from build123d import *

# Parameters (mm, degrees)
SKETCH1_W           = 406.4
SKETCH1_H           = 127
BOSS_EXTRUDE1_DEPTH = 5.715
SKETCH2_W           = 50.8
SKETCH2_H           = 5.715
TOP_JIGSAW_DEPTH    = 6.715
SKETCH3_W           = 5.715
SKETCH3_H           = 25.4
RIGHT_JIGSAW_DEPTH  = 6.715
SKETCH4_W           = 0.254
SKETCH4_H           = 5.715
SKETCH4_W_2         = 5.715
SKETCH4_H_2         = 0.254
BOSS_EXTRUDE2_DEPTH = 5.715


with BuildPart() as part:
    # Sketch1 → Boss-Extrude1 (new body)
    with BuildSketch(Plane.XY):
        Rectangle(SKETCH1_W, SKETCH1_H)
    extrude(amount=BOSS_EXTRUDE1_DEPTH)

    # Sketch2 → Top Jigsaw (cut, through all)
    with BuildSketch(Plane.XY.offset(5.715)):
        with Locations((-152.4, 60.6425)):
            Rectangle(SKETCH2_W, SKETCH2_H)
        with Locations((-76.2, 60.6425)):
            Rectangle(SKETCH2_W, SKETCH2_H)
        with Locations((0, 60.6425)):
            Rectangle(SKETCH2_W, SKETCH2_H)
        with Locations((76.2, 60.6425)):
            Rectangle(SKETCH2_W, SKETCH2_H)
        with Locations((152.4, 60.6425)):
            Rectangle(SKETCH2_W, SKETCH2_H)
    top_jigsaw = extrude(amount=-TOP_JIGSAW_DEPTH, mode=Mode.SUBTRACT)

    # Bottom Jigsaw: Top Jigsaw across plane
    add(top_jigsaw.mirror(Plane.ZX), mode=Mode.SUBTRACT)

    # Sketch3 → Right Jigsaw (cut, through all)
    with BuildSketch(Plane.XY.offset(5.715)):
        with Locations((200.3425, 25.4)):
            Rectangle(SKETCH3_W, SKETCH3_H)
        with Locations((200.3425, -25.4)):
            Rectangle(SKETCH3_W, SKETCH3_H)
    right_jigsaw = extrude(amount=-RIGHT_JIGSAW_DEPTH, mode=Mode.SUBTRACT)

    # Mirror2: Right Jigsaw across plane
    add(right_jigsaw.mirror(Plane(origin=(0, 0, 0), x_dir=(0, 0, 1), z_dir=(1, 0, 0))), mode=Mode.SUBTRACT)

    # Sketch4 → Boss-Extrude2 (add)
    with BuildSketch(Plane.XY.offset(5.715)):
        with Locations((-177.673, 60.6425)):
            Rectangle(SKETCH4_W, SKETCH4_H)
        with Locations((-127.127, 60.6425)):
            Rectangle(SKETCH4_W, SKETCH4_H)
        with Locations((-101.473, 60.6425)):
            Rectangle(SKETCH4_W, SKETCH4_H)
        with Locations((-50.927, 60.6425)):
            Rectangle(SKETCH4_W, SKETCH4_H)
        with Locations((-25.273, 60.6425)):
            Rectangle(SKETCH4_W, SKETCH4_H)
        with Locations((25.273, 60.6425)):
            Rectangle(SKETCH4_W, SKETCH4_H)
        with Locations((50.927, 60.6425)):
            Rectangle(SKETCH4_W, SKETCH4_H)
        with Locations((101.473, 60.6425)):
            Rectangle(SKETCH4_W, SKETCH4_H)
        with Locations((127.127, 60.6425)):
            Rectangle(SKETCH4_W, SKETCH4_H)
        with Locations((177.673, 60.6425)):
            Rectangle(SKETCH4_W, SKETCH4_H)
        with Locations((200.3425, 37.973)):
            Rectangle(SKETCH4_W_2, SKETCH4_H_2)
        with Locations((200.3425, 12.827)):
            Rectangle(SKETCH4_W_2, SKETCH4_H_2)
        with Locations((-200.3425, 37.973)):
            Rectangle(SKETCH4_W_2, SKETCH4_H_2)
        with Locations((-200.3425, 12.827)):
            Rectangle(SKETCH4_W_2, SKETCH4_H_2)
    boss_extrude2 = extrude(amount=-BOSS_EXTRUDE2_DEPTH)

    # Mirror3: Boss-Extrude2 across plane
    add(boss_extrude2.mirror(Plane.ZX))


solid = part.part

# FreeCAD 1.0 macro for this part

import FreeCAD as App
import Part
import Sketcher

V = App.Vector
Q = App.Units.Quantity

doc = App.newDocument("Part")
params = doc.addObject("Spreadsheet::Sheet", "Params")
for row, (alias, value) in enumerate([
    ("sketch1_width", "16 in"),
    ("sketch1_height", "5 in"),
    ("pad1_length", "0.225 in"),
    ("sketch2_width", "2 in"),
    ("sketch2_height", "0.225 in"),
    ("sketch3_height", "1 in"),
    ("sketch3_width", "0.225 in"),
    ("sketch4_width", "0.01 in"),
    ("sketch4_width2", "0.225 in"),
    ("pad2_length", "0.225 in"),
], start=1):
    params.set(f"A{row}", alias)
    params.set(f"B{row}", "=" + value)
    params.setAlias(f"B{row}", alias)

body = doc.addObject("PartDesign::Body", "Body")

# Sketch on XY plane
sketch1 = body.newObject("Sketcher::SketchObject", "Sketch")
sketch1.AttachmentSupport = (doc.getObject("XY_Plane"), [""])
sketch1.MapMode = "FlatFace"
sketch1.addGeometry([
    Part.LineSegment(V(-203, 64, 0), V(-203, -64, 0)),
    Part.LineSegment(V(-203, -64, 0), V(203, -64, 0)),
    Part.LineSegment(V(203, -64, 0), V(203, 64, 0)),
    Part.LineSegment(V(203, 64, 0), V(-203, 64, 0)),
], False)
sketch1.addConstraint([
    Sketcher.Constraint("Coincident", 0, 2, 1, 1),
    Sketcher.Constraint("Coincident", 1, 2, 2, 1),
    Sketcher.Constraint("Coincident", 2, 2, 3, 1),
    Sketcher.Constraint("Coincident", 3, 2, 0, 1),
    Sketcher.Constraint("Vertical", 0),
    Sketcher.Constraint("Horizontal", 1),
    Sketcher.Constraint("Vertical", 2),
    Sketcher.Constraint("Horizontal", 3),
    Sketcher.Constraint("Symmetric", 0, 2, 2, 2, -1, 1),
    Sketcher.Constraint("DistanceX", 1, 1, 1, 2, Q("16 in")),
    Sketcher.Constraint("DistanceY", 0, 2, 0, 1, Q("5 in")),
])
sketch1.setExpression("Constraints[9]", "Params.sketch1_width")
sketch1.setExpression("Constraints[10]", "Params.sketch1_height")
pad1 = body.newObject("PartDesign::Pad", "Pad")
pad1.Profile = sketch1
pad1.setExpression("Length", "Params.pad1_length")

# Sketch on XY plane
sketch2 = body.newObject("Sketcher::SketchObject", "Sketch001")
sketch2.AttachmentSupport = (doc.getObject("XY_Plane"), [""])
sketch2.MapMode = "FlatFace"
sketch2.AttachmentOffset = App.Placement(V(0, 0, 0.225 * 25.4), App.Rotation())
sketch2.addGeometry([
    Part.LineSegment(V(-178, 64, 0), V(-178, 58, 0)),  # 0
    Part.LineSegment(V(-178, 58, 0), V(-127, 58, 0)),  # 1
    Part.LineSegment(V(-127, 58, 0), V(-127, 64, 0)),  # 2
    Part.LineSegment(V(-127, 64, 0), V(-178, 64, 0)),  # 3
    Part.LineSegment(V(-102, 64, 0), V(-102, 58, 0)),  # 4
    Part.LineSegment(V(-102, 58, 0), V(-51, 58, 0)),  # 5
    Part.LineSegment(V(-51, 58, 0), V(-51, 64, 0)),  # 6
    Part.LineSegment(V(-51, 64, 0), V(-102, 64, 0)),  # 7
    Part.LineSegment(V(-25, 64, 0), V(-25, 58, 0)),  # 8
    Part.LineSegment(V(-25, 58, 0), V(25, 58, 0)),  # 9
    Part.LineSegment(V(25, 58, 0), V(25, 64, 0)),  # 10
    Part.LineSegment(V(25, 64, 0), V(-25, 64, 0)),  # 11
    Part.LineSegment(V(51, 64, 0), V(51, 58, 0)),  # 12
    Part.LineSegment(V(51, 58, 0), V(102, 58, 0)),  # 13
    Part.LineSegment(V(102, 58, 0), V(102, 64, 0)),  # 14
    Part.LineSegment(V(102, 64, 0), V(51, 64, 0)),  # 15
    Part.LineSegment(V(127, 64, 0), V(127, 58, 0)),  # 16
    Part.LineSegment(V(127, 58, 0), V(178, 58, 0)),  # 17
    Part.LineSegment(V(178, 58, 0), V(178, 64, 0)),  # 18
    Part.LineSegment(V(178, 64, 0), V(127, 64, 0)),  # 19
], False)
sketch2.addConstraint([
    Sketcher.Constraint("Coincident", 0, 2, 1, 1),
    Sketcher.Constraint("Coincident", 1, 2, 2, 1),
    Sketcher.Constraint("Coincident", 2, 2, 3, 1),
    Sketcher.Constraint("Coincident", 3, 2, 0, 1),
    Sketcher.Constraint("Coincident", 4, 2, 5, 1),
    Sketcher.Constraint("Coincident", 5, 2, 6, 1),
    Sketcher.Constraint("Coincident", 6, 2, 7, 1),
    Sketcher.Constraint("Coincident", 7, 2, 4, 1),
    Sketcher.Constraint("Coincident", 8, 2, 9, 1),
    Sketcher.Constraint("Coincident", 9, 2, 10, 1),
    Sketcher.Constraint("Coincident", 10, 2, 11, 1),
    Sketcher.Constraint("Coincident", 11, 2, 8, 1),
    Sketcher.Constraint("Coincident", 12, 2, 13, 1),
    Sketcher.Constraint("Coincident", 13, 2, 14, 1),
    Sketcher.Constraint("Coincident", 14, 2, 15, 1),
    Sketcher.Constraint("Coincident", 15, 2, 12, 1),
    Sketcher.Constraint("Coincident", 16, 2, 17, 1),
    Sketcher.Constraint("Coincident", 17, 2, 18, 1),
    Sketcher.Constraint("Coincident", 18, 2, 19, 1),
    Sketcher.Constraint("Coincident", 19, 2, 16, 1),
    Sketcher.Constraint("Vertical", 0),
    Sketcher.Constraint("Horizontal", 1),
    Sketcher.Constraint("Vertical", 2),
    Sketcher.Constraint("Horizontal", 3),
    Sketcher.Constraint("Vertical", 4),
    Sketcher.Constraint("Horizontal", 5),
    Sketcher.Constraint("Vertical", 6),
    Sketcher.Constraint("Horizontal", 7),
    Sketcher.Constraint("Vertical", 8),
    Sketcher.Constraint("Horizontal", 9),
    Sketcher.Constraint("Vertical", 10),
    Sketcher.Constraint("Horizontal", 11),
    Sketcher.Constraint("Vertical", 12),
    Sketcher.Constraint("Horizontal", 13),
    Sketcher.Constraint("Vertical", 14),
    Sketcher.Constraint("Horizontal", 15),
    Sketcher.Constraint("Vertical", 16),
    Sketcher.Constraint("Horizontal", 17),
    Sketcher.Constraint("Vertical", 18),
    Sketcher.Constraint("Horizontal", 19),
    Sketcher.Constraint("Symmetric", 5, 2, 12, 2, -2),
    Sketcher.Constraint("Symmetric", 7, 2, 14, 2, -2),
    Sketcher.Constraint("Symmetric", 1, 2, 16, 2, -2),
    Sketcher.Constraint("Symmetric", 3, 2, 18, 2, -2),
    Sketcher.Constraint("Horizontal", 1, 2, 4, 2),
    Sketcher.Constraint("Horizontal", 3, 2, 6, 2),
    Sketcher.Constraint("Horizontal", 5, 2, 8, 2),
    Sketcher.Constraint("Horizontal", 7, 2, 10, 2),
    Sketcher.Constraint("Equal", 3, 5),
    Sketcher.Constraint("Equal", 7, 9),
    Sketcher.Constraint("DistanceX", 1, 1, 1, 2, Q("2 in")),
    Sketcher.Constraint("DistanceX", 0, 2, -1, 1, Q("7 in")),
    Sketcher.Constraint("DistanceX", 4, 2, -1, 1, Q("4 in")),
    Sketcher.Constraint("DistanceX", 8, 2, -1, 1, Q("1 in")),
    Sketcher.Constraint("DistanceY", -1, 1, 2, 2, Q("2.5 in")),
    Sketcher.Constraint("DistanceY", 0, 2, 0, 1, Q("0.225 in")),
])
sketch2.setExpression("Constraints[50]", "Params.sketch2_width")
sketch2.setExpression("Constraints[55]", "Params.sketch2_height")
pocket1 = body.newObject("PartDesign::Pocket", "Pocket")
pocket1.Profile = sketch2
pocket1.Type = "ThroughAll"
doc.recompute()

mirrored = body.newObject("PartDesign::Mirrored", "Mirrored")
mirrored.Originals = [pocket1]
mirrored.MirrorPlane = (doc.getObject("XZ_Plane"), [""])
body.Tip = mirrored

# Sketch on XY plane
sketch3 = body.newObject("Sketcher::SketchObject", "Sketch002")
sketch3.AttachmentSupport = (doc.getObject("XY_Plane"), [""])
sketch3.MapMode = "FlatFace"
sketch3.AttachmentOffset = App.Placement(V(0, 0, 0.225 * 25.4), App.Rotation())
sketch3.addGeometry([
    Part.LineSegment(V(197, 38, 0), V(197, 13, 0)),  # 0
    Part.LineSegment(V(197, 13, 0), V(203, 13, 0)),  # 1
    Part.LineSegment(V(203, 13, 0), V(203, 38, 0)),  # 2
    Part.LineSegment(V(203, 38, 0), V(197, 38, 0)),  # 3
    Part.LineSegment(V(197, -13, 0), V(197, -38, 0)),  # 4
    Part.LineSegment(V(197, -38, 0), V(203, -38, 0)),  # 5
    Part.LineSegment(V(203, -38, 0), V(203, -13, 0)),  # 6
    Part.LineSegment(V(203, -13, 0), V(197, -13, 0)),  # 7
], False)
sketch3.addConstraint([
    Sketcher.Constraint("Coincident", 0, 2, 1, 1),
    Sketcher.Constraint("Coincident", 1, 2, 2, 1),
    Sketcher.Constraint("Coincident", 2, 2, 3, 1),
    Sketcher.Constraint("Coincident", 3, 2, 0, 1),
    Sketcher.Constraint("Coincident", 4, 2, 5, 1),
    Sketcher.Constraint("Coincident", 5, 2, 6, 1),
    Sketcher.Constraint("Coincident", 6, 2, 7, 1),
    Sketcher.Constraint("Coincident", 7, 2, 4, 1),
    Sketcher.Constraint("Vertical", 0),
    Sketcher.Constraint("Horizontal", 1),
    Sketcher.Constraint("Vertical", 2),
    Sketcher.Constraint("Horizontal", 3),
    Sketcher.Constraint("Vertical", 4),
    Sketcher.Constraint("Horizontal", 5),
    Sketcher.Constraint("Vertical", 6),
    Sketcher.Constraint("Horizontal", 7),
    Sketcher.Constraint("Symmetric", 3, 2, 4, 2, -1),
    Sketcher.Constraint("Symmetric", 1, 2, 6, 2, -1),
    Sketcher.Constraint("DistanceY", 0, 2, 0, 1, Q("1 in")),
    Sketcher.Constraint("DistanceX", -1, 1, 1, 2, Q("8 in")),
    Sketcher.Constraint("DistanceY", 4, 2, 0, 2, Q("2 in")),
    Sketcher.Constraint("DistanceX", 1, 1, 1, 2, Q("0.225 in")),
])
sketch3.setExpression("Constraints[18]", "Params.sketch3_height")
sketch3.setExpression("Constraints[21]", "Params.sketch3_width")
pocket2 = body.newObject("PartDesign::Pocket", "Pocket001")
pocket2.Profile = sketch3
pocket2.Type = "ThroughAll"
doc.recompute()

mirrored2 = body.newObject("PartDesign::Mirrored", "Mirrored001")
mirrored2.Originals = [pocket2]
mirrored2.MirrorPlane = (doc.getObject("YZ_Plane"), [""])
body.Tip = mirrored2

# Sketch on XY plane
sketch4 = body.newObject("Sketcher::SketchObject", "Sketch003")
sketch4.AttachmentSupport = (doc.getObject("XY_Plane"), [""])
sketch4.MapMode = "FlatFace"
sketch4.AttachmentOffset = App.Placement(V(0, 0, 0.225 * 25.4), App.Rotation())
sketch4.addGeometry([
    Part.LineSegment(V(-177.8, 63.5, 0), V(-177.8, 57.78, 0)),  # 0
    Part.LineSegment(V(-177.8, 57.78, 0), V(-177.55, 57.78, 0)),  # 1
    Part.LineSegment(V(-177.55, 57.78, 0), V(-177.55, 63.5, 0)),  # 2
    Part.LineSegment(V(-177.55, 63.5, 0), V(-177.8, 63.5, 0)),  # 3
    Part.LineSegment(V(-127.25, 63.5, 0), V(-127.25, 57.78, 0)),  # 4
    Part.LineSegment(V(-127.25, 57.78, 0), V(-127, 57.78, 0)),  # 5
    Part.LineSegment(V(-127, 57.78, 0), V(-127, 63.5, 0)),  # 6
    Part.LineSegment(V(-127, 63.5, 0), V(-127.25, 63.5, 0)),  # 7
    Part.LineSegment(V(-101.6, 63.5, 0), V(-101.6, 57.78, 0)),  # 8
    Part.LineSegment(V(-101.6, 57.78, 0), V(-101.35, 57.78, 0)),  # 9
    Part.LineSegment(V(-101.35, 57.78, 0), V(-101.35, 63.5, 0)),  # 10
    Part.LineSegment(V(-101.35, 63.5, 0), V(-101.6, 63.5, 0)),  # 11
    Part.LineSegment(V(-51.05, 63.5, 0), V(-51.05, 57.78, 0)),  # 12
    Part.LineSegment(V(-51.05, 57.78, 0), V(-50.8, 57.78, 0)),  # 13
    Part.LineSegment(V(-50.8, 57.78, 0), V(-50.8, 63.5, 0)),  # 14
    Part.LineSegment(V(-50.8, 63.5, 0), V(-51.05, 63.5, 0)),  # 15
    Part.LineSegment(V(-25.4, 63.5, 0), V(-25.4, 57.78, 0)),  # 16
    Part.LineSegment(V(-25.4, 57.78, 0), V(-25.15, 57.78, 0)),  # 17
    Part.LineSegment(V(-25.15, 57.78, 0), V(-25.15, 63.5, 0)),  # 18
    Part.LineSegment(V(-25.15, 63.5, 0), V(-25.4, 63.5, 0)),  # 19
    Part.LineSegment(V(25.15, 63.5, 0), V(25.15, 57.78, 0)),  # 20
    Part.LineSegment(V(25.15, 57.78, 0), V(25.4, 57.78, 0)),  # 21
    Part.LineSegment(V(25.4, 57.78, 0), V(25.4, 63.5, 0)),  # 22
    Part.LineSegment(V(25.4, 63.5, 0), V(25.15, 63.5, 0)),  # 23
    Part.LineSegment(V(50.8, 63.5, 0), V(50.8, 57.78, 0)),  # 24
    Part.LineSegment(V(50.8, 57.78, 0), V(51.05, 57.78, 0)),  # 25
    Part.LineSegment(V(51.05, 57.78, 0), V(51.05, 63.5, 0)),  # 26
    Part.LineSegment(V(51.05, 63.5, 0), V(50.8, 63.5, 0)),  # 27
    Part.LineSegment(V(101.35, 63.5, 0), V(101.35, 57.78, 0)),  # 28
    Part.LineSegment(V(101.35, 57.78, 0), V(101.6, 57.78, 0)),  # 29
    Part.LineSegment(V(101.6, 57.78, 0), V(101.6, 63.5, 0)),  # 30
    Part.LineSegment(V(101.6, 63.5, 0), V(101.35, 63.5, 0)),  # 31
    Part.LineSegment(V(127, 63.5, 0), V(127, 57.78, 0)),  # 32
    Part.LineSegment(V(127, 57.78, 0), V(127.25, 57.78, 0)),  # 33
    Part.LineSegment(V(127.25, 57.78, 0), V(127.25, 63.5, 0)),  # 34
    Part.LineSegment(V(127.25, 63.5, 0), V(127, 63.5, 0)),  # 35
    Part.LineSegment(V(177.55, 63.5, 0), V(177.55, 57.78, 0)),  # 36
    Part.LineSegment(V(177.55, 57.78, 0), V(177.8, 57.78, 0)),  # 37
    Part.LineSegment(V(177.8, 57.78, 0), V(177.8, 63.5, 0)),  # 38
    Part.LineSegment(V(177.8, 63.5, 0), V(177.55, 63.5, 0)),  # 39
    Part.LineSegment(V(197.49, 38.1, 0), V(197.49, 37.85, 0)),  # 40
    Part.LineSegment(V(197.49, 37.85, 0), V(203.2, 37.85, 0)),  # 41
    Part.LineSegment(V(203.2, 37.85, 0), V(203.2, 38.1, 0)),  # 42
    Part.LineSegment(V(203.2, 38.1, 0), V(197.49, 38.1, 0)),  # 43
    Part.LineSegment(V(197.49, 12.95, 0), V(197.49, 12.7, 0)),  # 44
    Part.LineSegment(V(197.49, 12.7, 0), V(203.2, 12.7, 0)),  # 45
    Part.LineSegment(V(203.2, 12.7, 0), V(203.2, 12.95, 0)),  # 46
    Part.LineSegment(V(203.2, 12.95, 0), V(197.49, 12.95, 0)),  # 47
    Part.LineSegment(V(-203.2, 38.1, 0), V(-203.2, 37.85, 0)),  # 48
    Part.LineSegment(V(-203.2, 37.85, 0), V(-197.49, 37.85, 0)),  # 49
    Part.LineSegment(V(-197.49, 37.85, 0), V(-197.49, 38.1, 0)),  # 50
    Part.LineSegment(V(-197.49, 38.1, 0), V(-203.2, 38.1, 0)),  # 51
    Part.LineSegment(V(-203.2, 12.95, 0), V(-203.2, 12.7, 0)),  # 52
    Part.LineSegment(V(-203.2, 12.7, 0), V(-197.49, 12.7, 0)),  # 53
    Part.LineSegment(V(-197.49, 12.7, 0), V(-197.49, 12.95, 0)),  # 54
    Part.LineSegment(V(-197.49, 12.95, 0), V(-203.2, 12.95, 0)),  # 55
], False)
sketch4.addConstraint([
    Sketcher.Constraint("Coincident", 0, 2, 1, 1),
    Sketcher.Constraint("Coincident", 1, 2, 2, 1),
    Sketcher.Constraint("Coincident", 2, 2, 3, 1),
    Sketcher.Constraint("Coincident", 3, 2, 0, 1),
    Sketcher.Constraint("Coincident", 4, 2, 5, 1),
    Sketcher.Constraint("Coincident", 5, 2, 6, 1),
    Sketcher.Constraint("Coincident", 6, 2, 7, 1),
    Sketcher.Constraint("Coincident", 7, 2, 4, 1),
    Sketcher.Constraint("Coincident", 8, 2, 9, 1),
    Sketcher.Constraint("Coincident", 9, 2, 10, 1),
    Sketcher.Constraint("Coincident", 10, 2, 11, 1),
    Sketcher.Constraint("Coincident", 11, 2, 8, 1),
    Sketcher.Constraint("Coincident", 12, 2, 13, 1),
    Sketcher.Constraint("Coincident", 13, 2, 14, 1),
    Sketcher.Constraint("Coincident", 14, 2, 15, 1),
    Sketcher.Constraint("Coincident", 15, 2, 12, 1),
    Sketcher.Constraint("Coincident", 16, 2, 17, 1),
    Sketcher.Constraint("Coincident", 17, 2, 18, 1),
    Sketcher.Constraint("Coincident", 18, 2, 19, 1),
    Sketcher.Constraint("Coincident", 19, 2, 16, 1),
    Sketcher.Constraint("Coincident", 20, 2, 21, 1),
    Sketcher.Constraint("Coincident", 21, 2, 22, 1),
    Sketcher.Constraint("Coincident", 22, 2, 23, 1),
    Sketcher.Constraint("Coincident", 23, 2, 20, 1),
    Sketcher.Constraint("Coincident", 24, 2, 25, 1),
    Sketcher.Constraint("Coincident", 25, 2, 26, 1),
    Sketcher.Constraint("Coincident", 26, 2, 27, 1),
    Sketcher.Constraint("Coincident", 27, 2, 24, 1),
    Sketcher.Constraint("Coincident", 28, 2, 29, 1),
    Sketcher.Constraint("Coincident", 29, 2, 30, 1),
    Sketcher.Constraint("Coincident", 30, 2, 31, 1),
    Sketcher.Constraint("Coincident", 31, 2, 28, 1),
    Sketcher.Constraint("Coincident", 32, 2, 33, 1),
    Sketcher.Constraint("Coincident", 33, 2, 34, 1),
    Sketcher.Constraint("Coincident", 34, 2, 35, 1),
    Sketcher.Constraint("Coincident", 35, 2, 32, 1),
    Sketcher.Constraint("Coincident", 36, 2, 37, 1),
    Sketcher.Constraint("Coincident", 37, 2, 38, 1),
    Sketcher.Constraint("Coincident", 38, 2, 39, 1),
    Sketcher.Constraint("Coincident", 39, 2, 36, 1),
    Sketcher.Constraint("Coincident", 40, 2, 41, 1),
    Sketcher.Constraint("Coincident", 41, 2, 42, 1),
    Sketcher.Constraint("Coincident", 42, 2, 43, 1),
    Sketcher.Constraint("Coincident", 43, 2, 40, 1),
    Sketcher.Constraint("Coincident", 44, 2, 45, 1),
    Sketcher.Constraint("Coincident", 45, 2, 46, 1),
    Sketcher.Constraint("Coincident", 46, 2, 47, 1),
    Sketcher.Constraint("Coincident", 47, 2, 44, 1),
    Sketcher.Constraint("Coincident", 48, 2, 49, 1),
    Sketcher.Constraint("Coincident", 49, 2, 50, 1),
    Sketcher.Constraint("Coincident", 50, 2, 51, 1),
    Sketcher.Constraint("Coincident", 51, 2, 48, 1),
    Sketcher.Constraint("Coincident", 52, 2, 53, 1),
    Sketcher.Constraint("Coincident", 53, 2, 54, 1),
    Sketcher.Constraint("Coincident", 54, 2, 55, 1),
    Sketcher.Constraint("Coincident", 55, 2, 52, 1),
    Sketcher.Constraint("Vertical", 0),
    Sketcher.Constraint("Horizontal", 1),
    Sketcher.Constraint("Vertical", 2),
    Sketcher.Constraint("Horizontal", 3),
    Sketcher.Constraint("Vertical", 4),
    Sketcher.Constraint("Horizontal", 5),
    Sketcher.Constraint("Vertical", 6),
    Sketcher.Constraint("Horizontal", 7),
    Sketcher.Constraint("Vertical", 8),
    Sketcher.Constraint("Horizontal", 9),
    Sketcher.Constraint("Vertical", 10),
    Sketcher.Constraint("Horizontal", 11),
    Sketcher.Constraint("Vertical", 12),
    Sketcher.Constraint("Horizontal", 13),
    Sketcher.Constraint("Vertical", 14),
    Sketcher.Constraint("Horizontal", 15),
    Sketcher.Constraint("Vertical", 16),
    Sketcher.Constraint("Horizontal", 17),
    Sketcher.Constraint("Vertical", 18),
    Sketcher.Constraint("Horizontal", 19),
    Sketcher.Constraint("Vertical", 20),
    Sketcher.Constraint("Horizontal", 21),
    Sketcher.Constraint("Vertical", 22),
    Sketcher.Constraint("Horizontal", 23),
    Sketcher.Constraint("Vertical", 24),
    Sketcher.Constraint("Horizontal", 25),
    Sketcher.Constraint("Vertical", 26),
    Sketcher.Constraint("Horizontal", 27),
    Sketcher.Constraint("Vertical", 28),
    Sketcher.Constraint("Horizontal", 29),
    Sketcher.Constraint("Vertical", 30),
    Sketcher.Constraint("Horizontal", 31),
    Sketcher.Constraint("Vertical", 32),
    Sketcher.Constraint("Horizontal", 33),
    Sketcher.Constraint("Vertical", 34),
    Sketcher.Constraint("Horizontal", 35),
    Sketcher.Constraint("Vertical", 36),
    Sketcher.Constraint("Horizontal", 37),
    Sketcher.Constraint("Vertical", 38),
    Sketcher.Constraint("Horizontal", 39),
    Sketcher.Constraint("Vertical", 40),
    Sketcher.Constraint("Horizontal", 41),
    Sketcher.Constraint("Vertical", 42),
    Sketcher.Constraint("Horizontal", 43),
    Sketcher.Constraint("Vertical", 44),
    Sketcher.Constraint("Horizontal", 45),
    Sketcher.Constraint("Vertical", 46),
    Sketcher.Constraint("Horizontal", 47),
    Sketcher.Constraint("Vertical", 48),
    Sketcher.Constraint("Horizontal", 49),
    Sketcher.Constraint("Vertical", 50),
    Sketcher.Constraint("Horizontal", 51),
    Sketcher.Constraint("Vertical", 52),
    Sketcher.Constraint("Horizontal", 53),
    Sketcher.Constraint("Vertical", 54),
    Sketcher.Constraint("Horizontal", 55),
    Sketcher.Constraint("Symmetric", 17, 2, 20, 2, -2),
    Sketcher.Constraint("Symmetric", 19, 2, 22, 2, -2),
    Sketcher.Constraint("Symmetric", 13, 2, 24, 2, -2),
    Sketcher.Constraint("Symmetric", 15, 2, 26, 2, -2),
    Sketcher.Constraint("Symmetric", 9, 2, 28, 2, -2),
    Sketcher.Constraint("Symmetric", 11, 2, 30, 2, -2),
    Sketcher.Constraint("Symmetric", 5, 2, 32, 2, -2),
    Sketcher.Constraint("Symmetric", 7, 2, 34, 2, -2),
    Sketcher.Constraint("Symmetric", 1, 2, 36, 2, -2),
    Sketcher.Constraint("Symmetric", 3, 2, 38, 2, -2),
    Sketcher.Constraint("Symmetric", 41, 2, 48, 2, -2),
    Sketcher.Constraint("Symmetric", 43, 2, 50, 2, -2),
    Sketcher.Constraint("Symmetric", 45, 2, 52, 2, -2),
    Sketcher.Constraint("Symmetric", 47, 2, 54, 2, -2),
    Sketcher.Constraint("Horizontal", 1, 2, 4, 2),
    Sketcher.Constraint("Horizontal", 3, 2, 6, 2),
    Sketcher.Constraint("Horizontal", 5, 2, 8, 2),
    Sketcher.Constraint("Horizontal", 7, 2, 10, 2),
    Sketcher.Constraint("Horizontal", 9, 2, 12, 2),
    Sketcher.Constraint("Horizontal", 11, 2, 14, 2),
    Sketcher.Constraint("Horizontal", 13, 2, 16, 2),
    Sketcher.Constraint("Horizontal", 15, 2, 18, 2),
    Sketcher.Constraint("Vertical", 43, 2, 44, 2),
    Sketcher.Constraint("Vertical", 42, 2, 45, 2),
    Sketcher.Constraint("Equal", 3, 5),
    Sketcher.Constraint("Equal", 7, 9),
    Sketcher.Constraint("Equal", 11, 13),
    Sketcher.Constraint("Equal", 15, 17),
    Sketcher.Constraint("Equal", 55, 0),
    Sketcher.Constraint("Equal", 39, 40),
    Sketcher.Constraint("Equal", 42, 44),
    Sketcher.Constraint("DistanceX", 0, 2, -1, 1, Q("7 in")),
    Sketcher.Constraint("DistanceX", 5, 2, -1, 1, Q("5 in")),
    Sketcher.Constraint("DistanceX", 8, 2, -1, 1, Q("4 in")),
    Sketcher.Constraint("DistanceX", 13, 2, -1, 1, Q("2 in")),
    Sketcher.Constraint("DistanceX", 16, 2, -1, 1, Q("1 in")),
    Sketcher.Constraint("DistanceX", -1, 1, 41, 2, Q("8 in")),
    Sketcher.Constraint("DistanceY", 42, 2, 38, 2, Q("1 in")),
    Sketcher.Constraint("DistanceY", 44, 2, 43, 2, Q("1 in")),
    Sketcher.Constraint("DistanceX", 1, 1, 1, 2, Q("0.01 in")),
    Sketcher.Constraint("DistanceY", -1, 1, 2, 2, Q("2.5 in")),
    Sketcher.Constraint("DistanceX", 41, 1, 41, 2, Q("0.225 in")),
])
sketch4.setExpression("Constraints[151]", "Params.sketch4_width")
sketch4.setExpression("Constraints[153]", "Params.sketch4_width2")
pad2 = body.newObject("PartDesign::Pad", "Pad001")
pad2.Profile = sketch4
pad2.setExpression("Length", "Params.pad2_length")
pad2.Reversed = True
doc.recompute()

mirrored3 = body.newObject("PartDesign::Mirrored", "Mirrored002")
mirrored3.Originals = [pad2]
mirrored3.MirrorPlane = (doc.getObject("XZ_Plane"), [""])
body.Tip = mirrored3

doc.recompute()
